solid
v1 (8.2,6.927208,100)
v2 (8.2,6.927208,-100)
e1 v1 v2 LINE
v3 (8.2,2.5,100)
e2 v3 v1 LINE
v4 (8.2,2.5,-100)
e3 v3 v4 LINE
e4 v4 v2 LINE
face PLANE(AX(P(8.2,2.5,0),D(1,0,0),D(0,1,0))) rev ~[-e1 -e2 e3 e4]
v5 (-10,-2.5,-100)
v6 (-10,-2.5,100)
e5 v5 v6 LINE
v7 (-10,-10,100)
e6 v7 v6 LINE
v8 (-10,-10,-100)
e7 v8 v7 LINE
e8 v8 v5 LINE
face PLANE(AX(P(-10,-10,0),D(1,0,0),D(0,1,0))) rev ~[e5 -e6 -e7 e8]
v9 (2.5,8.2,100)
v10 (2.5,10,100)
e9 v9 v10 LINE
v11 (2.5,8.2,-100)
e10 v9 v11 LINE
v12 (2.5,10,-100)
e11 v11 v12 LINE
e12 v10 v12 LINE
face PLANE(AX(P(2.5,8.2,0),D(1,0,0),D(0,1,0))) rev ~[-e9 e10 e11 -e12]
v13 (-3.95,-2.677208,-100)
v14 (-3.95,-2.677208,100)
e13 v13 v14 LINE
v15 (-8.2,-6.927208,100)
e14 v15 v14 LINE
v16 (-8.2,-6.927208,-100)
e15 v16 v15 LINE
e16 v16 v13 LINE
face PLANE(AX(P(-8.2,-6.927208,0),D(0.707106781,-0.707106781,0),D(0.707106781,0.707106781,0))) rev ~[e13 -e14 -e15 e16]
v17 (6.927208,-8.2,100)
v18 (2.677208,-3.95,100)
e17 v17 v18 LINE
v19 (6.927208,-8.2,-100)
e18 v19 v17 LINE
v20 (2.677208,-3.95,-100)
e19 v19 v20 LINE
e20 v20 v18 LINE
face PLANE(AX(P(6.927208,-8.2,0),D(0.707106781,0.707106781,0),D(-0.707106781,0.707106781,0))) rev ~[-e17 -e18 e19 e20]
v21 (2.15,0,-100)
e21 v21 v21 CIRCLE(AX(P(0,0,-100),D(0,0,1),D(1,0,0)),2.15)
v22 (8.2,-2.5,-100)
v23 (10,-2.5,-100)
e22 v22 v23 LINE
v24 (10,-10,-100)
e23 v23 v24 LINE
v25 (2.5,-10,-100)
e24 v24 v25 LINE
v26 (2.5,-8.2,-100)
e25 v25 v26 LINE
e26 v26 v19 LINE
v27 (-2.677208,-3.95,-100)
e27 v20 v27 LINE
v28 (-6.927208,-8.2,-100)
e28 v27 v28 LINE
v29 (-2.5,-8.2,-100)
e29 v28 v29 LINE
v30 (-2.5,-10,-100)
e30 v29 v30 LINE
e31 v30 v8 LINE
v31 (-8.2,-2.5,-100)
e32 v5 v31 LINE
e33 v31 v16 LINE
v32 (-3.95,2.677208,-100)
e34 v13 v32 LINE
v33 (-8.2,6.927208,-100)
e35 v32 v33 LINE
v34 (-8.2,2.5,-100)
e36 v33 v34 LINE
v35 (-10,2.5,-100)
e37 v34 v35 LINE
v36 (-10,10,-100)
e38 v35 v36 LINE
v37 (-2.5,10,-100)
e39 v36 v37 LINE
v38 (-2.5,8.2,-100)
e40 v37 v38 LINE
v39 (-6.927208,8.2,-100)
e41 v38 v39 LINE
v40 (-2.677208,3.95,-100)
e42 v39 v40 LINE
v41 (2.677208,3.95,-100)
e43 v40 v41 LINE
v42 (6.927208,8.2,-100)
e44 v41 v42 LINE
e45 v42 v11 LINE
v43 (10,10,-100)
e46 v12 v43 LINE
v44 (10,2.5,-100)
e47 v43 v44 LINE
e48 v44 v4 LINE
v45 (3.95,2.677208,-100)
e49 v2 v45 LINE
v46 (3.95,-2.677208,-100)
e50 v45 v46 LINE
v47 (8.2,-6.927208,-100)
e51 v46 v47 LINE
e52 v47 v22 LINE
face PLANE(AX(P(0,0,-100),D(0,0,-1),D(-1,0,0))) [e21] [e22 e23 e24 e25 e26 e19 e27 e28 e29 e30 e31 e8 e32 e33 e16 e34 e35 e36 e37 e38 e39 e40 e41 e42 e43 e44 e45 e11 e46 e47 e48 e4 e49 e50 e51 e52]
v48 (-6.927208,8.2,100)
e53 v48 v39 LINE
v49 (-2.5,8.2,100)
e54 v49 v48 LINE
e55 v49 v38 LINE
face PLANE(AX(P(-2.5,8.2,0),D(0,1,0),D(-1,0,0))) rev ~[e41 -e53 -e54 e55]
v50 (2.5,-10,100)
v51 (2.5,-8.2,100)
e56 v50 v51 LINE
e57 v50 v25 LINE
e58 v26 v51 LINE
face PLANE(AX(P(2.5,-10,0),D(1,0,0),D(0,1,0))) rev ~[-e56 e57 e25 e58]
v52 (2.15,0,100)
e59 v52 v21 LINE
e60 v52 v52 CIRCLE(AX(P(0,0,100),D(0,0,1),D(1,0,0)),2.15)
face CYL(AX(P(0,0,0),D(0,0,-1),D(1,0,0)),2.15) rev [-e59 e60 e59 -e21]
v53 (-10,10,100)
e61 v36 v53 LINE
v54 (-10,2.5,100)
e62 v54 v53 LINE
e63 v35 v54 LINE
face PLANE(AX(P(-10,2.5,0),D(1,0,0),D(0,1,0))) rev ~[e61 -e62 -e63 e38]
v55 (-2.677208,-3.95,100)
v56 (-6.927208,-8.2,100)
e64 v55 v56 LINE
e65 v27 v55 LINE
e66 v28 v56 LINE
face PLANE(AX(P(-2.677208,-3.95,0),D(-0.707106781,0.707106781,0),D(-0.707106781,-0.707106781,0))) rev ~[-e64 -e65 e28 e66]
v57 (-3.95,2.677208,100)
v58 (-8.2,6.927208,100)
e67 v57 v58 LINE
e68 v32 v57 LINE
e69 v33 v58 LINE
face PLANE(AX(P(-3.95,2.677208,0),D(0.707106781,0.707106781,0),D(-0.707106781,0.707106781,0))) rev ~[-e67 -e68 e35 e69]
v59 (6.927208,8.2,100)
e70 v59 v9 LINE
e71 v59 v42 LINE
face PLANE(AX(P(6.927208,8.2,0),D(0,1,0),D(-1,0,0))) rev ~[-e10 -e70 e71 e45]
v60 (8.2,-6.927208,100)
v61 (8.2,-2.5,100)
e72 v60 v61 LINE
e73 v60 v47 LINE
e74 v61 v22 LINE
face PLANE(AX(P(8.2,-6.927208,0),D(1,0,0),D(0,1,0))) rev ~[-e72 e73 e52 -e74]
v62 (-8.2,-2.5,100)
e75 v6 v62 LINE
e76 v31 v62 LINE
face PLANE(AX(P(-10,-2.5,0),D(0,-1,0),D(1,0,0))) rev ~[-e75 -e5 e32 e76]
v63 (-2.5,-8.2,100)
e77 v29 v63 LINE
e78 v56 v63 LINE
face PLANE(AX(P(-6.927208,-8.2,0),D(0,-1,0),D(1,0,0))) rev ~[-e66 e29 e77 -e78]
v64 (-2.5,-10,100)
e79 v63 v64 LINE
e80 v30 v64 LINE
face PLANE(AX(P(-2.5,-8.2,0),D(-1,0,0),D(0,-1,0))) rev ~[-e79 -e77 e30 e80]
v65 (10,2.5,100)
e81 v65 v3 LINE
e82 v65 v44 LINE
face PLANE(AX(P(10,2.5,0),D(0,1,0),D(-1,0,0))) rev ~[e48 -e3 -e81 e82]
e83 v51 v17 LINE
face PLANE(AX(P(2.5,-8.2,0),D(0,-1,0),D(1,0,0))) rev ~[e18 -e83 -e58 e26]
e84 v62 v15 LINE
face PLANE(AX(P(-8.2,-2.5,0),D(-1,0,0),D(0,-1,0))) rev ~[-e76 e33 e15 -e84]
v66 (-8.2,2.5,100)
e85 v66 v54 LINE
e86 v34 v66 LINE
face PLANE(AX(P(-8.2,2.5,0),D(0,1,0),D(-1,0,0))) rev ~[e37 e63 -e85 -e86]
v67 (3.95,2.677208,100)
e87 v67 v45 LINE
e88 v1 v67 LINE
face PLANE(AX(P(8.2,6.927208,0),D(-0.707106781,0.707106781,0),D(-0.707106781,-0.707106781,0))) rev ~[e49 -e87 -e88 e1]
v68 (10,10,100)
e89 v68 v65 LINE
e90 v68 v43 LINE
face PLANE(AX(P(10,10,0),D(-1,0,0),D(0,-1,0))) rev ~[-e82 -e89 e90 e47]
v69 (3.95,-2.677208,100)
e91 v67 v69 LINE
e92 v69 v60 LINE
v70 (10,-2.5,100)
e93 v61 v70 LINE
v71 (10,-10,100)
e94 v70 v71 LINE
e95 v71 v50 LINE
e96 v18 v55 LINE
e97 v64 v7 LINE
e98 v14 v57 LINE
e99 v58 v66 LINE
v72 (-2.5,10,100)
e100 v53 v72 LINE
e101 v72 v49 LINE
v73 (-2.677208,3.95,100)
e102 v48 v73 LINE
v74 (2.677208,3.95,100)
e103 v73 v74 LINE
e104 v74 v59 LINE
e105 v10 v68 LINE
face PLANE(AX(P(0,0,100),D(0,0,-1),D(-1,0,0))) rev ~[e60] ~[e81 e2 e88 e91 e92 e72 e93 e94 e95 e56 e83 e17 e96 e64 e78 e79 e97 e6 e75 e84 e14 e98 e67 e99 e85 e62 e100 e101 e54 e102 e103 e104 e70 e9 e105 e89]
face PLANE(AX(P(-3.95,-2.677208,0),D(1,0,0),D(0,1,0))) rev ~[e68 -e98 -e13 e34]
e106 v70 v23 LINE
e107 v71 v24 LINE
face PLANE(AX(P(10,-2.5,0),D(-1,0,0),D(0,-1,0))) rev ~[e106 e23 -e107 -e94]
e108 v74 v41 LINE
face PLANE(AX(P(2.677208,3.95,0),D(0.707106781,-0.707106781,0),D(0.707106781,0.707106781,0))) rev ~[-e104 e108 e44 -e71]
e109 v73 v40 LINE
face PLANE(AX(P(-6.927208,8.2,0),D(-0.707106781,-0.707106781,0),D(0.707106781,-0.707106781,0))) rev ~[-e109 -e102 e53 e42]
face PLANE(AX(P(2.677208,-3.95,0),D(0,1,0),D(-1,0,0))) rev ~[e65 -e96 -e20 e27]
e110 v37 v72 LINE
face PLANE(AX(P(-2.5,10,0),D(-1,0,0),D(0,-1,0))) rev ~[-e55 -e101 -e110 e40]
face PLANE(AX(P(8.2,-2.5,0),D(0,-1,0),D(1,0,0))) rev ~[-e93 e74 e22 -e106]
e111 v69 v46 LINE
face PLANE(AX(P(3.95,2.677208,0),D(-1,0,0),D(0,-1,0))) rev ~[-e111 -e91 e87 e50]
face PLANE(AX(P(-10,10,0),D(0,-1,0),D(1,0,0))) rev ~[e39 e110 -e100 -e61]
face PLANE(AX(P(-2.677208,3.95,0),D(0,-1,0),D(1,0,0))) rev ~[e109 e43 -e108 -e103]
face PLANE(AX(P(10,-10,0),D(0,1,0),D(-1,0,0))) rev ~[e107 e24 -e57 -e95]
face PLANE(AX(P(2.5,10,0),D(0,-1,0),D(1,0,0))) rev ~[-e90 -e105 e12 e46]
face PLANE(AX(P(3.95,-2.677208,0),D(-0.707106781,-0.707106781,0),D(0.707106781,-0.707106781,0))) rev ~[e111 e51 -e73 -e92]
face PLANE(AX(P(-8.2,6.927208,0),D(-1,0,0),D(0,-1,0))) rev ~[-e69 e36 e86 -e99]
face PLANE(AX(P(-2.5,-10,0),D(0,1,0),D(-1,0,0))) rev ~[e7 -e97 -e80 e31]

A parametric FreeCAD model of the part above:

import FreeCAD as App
import Part
import Sketcher

doc = App.newDocument("Part")
body = doc.addObject("PartDesign::Body", "Body")

# Sketch on XY plane
sketch1 = body.newObject("Sketcher::SketchObject", "Sketch")
sketch1.AttachmentSupport = (doc.getObject("XY_Plane"), [""])
sketch1.MapMode = "FlatFace"
sketch1.addGeometry([
    Part.LineSegment(App.Vector(-2.5, 8.2, 0), App.Vector(-2.5, 10, 0)),  # 0
    Part.LineSegment(App.Vector(-2.5, 10, 0), App.Vector(-10, 10, 0)),  # 1
    Part.LineSegment(App.Vector(-10, 10, 0), App.Vector(-10, 2.5, 0)),  # 2
    Part.LineSegment(App.Vector(-10, 2.5, 0), App.Vector(-8.2, 2.5, 0)),  # 3
    Part.LineSegment(App.Vector(-8.2, 2.5, 0), App.Vector(-8.2, 6.9, 0)),  # 4
    Part.LineSegment(App.Vector(-8.2, 6.9, 0), App.Vector(-4, 2.7, 0)),  # 5
    Part.LineSegment(App.Vector(-4, 2.7, 0), App.Vector(-4, -2.7, 0)),  # 6
    Part.LineSegment(App.Vector(-4, -2.7, 0), App.Vector(-8.2, -6.9, 0)),  # 7
    Part.LineSegment(App.Vector(-8.2, -6.9, 0), App.Vector(-8.2, -2.5, 0)),  # 8
    Part.LineSegment(App.Vector(-8.2, -2.5, 0), App.Vector(-10, -2.5, 0)),  # 9
    Part.LineSegment(App.Vector(-10, -2.5, 0), App.Vector(-10, -10, 0)),  # 10
    Part.LineSegment(App.Vector(-10, -10, 0), App.Vector(-2.5, -10, 0)),  # 11
    Part.LineSegment(App.Vector(-2.5, -10, 0), App.Vector(-2.5, -8.2, 0)),  # 12
    Part.LineSegment(App.Vector(-2.5, -8.2, 0), App.Vector(-6.9, -8.2, 0)),  # 13
    Part.LineSegment(App.Vector(-6.9, -8.2, 0), App.Vector(-2.7, -4, 0)),  # 14
    Part.LineSegment(App.Vector(-2.7, -4, 0), App.Vector(2.7, -4, 0)),  # 15
    Part.LineSegment(App.Vector(2.7, -4, 0), App.Vector(6.9, -8.2, 0)),  # 16
    Part.LineSegment(App.Vector(6.9, -8.2, 0), App.Vector(2.5, -8.2, 0)),  # 17
    Part.LineSegment(App.Vector(2.5, -8.2, 0), App.Vector(2.5, -10, 0)),  # 18
    Part.LineSegment(App.Vector(2.5, -10, 0), App.Vector(10, -10, 0)),  # 19
    Part.LineSegment(App.Vector(10, -10, 0), App.Vector(10, -2.5, 0)),  # 20
    Part.LineSegment(App.Vector(10, -2.5, 0), App.Vector(8.2, -2.5, 0)),  # 21
    Part.LineSegment(App.Vector(8.2, -2.5, 0), App.Vector(8.2, -6.9, 0)),  # 22
    Part.LineSegment(App.Vector(8.2, -6.9, 0), App.Vector(4, -2.7, 0)),  # 23
    Part.LineSegment(App.Vector(4, -2.7, 0), App.Vector(4, 2.7, 0)),  # 24
    Part.LineSegment(App.Vector(4, 2.7, 0), App.Vector(8.2, 6.9, 0)),  # 25
    Part.LineSegment(App.Vector(8.2, 6.9, 0), App.Vector(8.2, 2.5, 0)),  # 26
    Part.LineSegment(App.Vector(8.2, 2.5, 0), App.Vector(10, 2.5, 0)),  # 27
    Part.LineSegment(App.Vector(10, 2.5, 0), App.Vector(10, 10, 0)),  # 28
    Part.LineSegment(App.Vector(10, 10, 0), App.Vector(2.5, 10, 0)),  # 29
    Part.LineSegment(App.Vector(2.5, 10, 0), App.Vector(2.5, 8.2, 0)),  # 30
    Part.LineSegment(App.Vector(2.5, 8.2, 0), App.Vector(6.9, 8.2, 0)),  # 31
    Part.LineSegment(App.Vector(6.9, 8.2, 0), App.Vector(2.7, 4, 0)),  # 32
    Part.LineSegment(App.Vector(2.7, 4, 0), App.Vector(-2.7, 4, 0)),  # 33
    Part.LineSegment(App.Vector(-2.7, 4, 0), App.Vector(-6.9, 8.2, 0)),  # 34
    Part.LineSegment(App.Vector(-6.9, 8.2, 0), App.Vector(-2.5, 8.2, 0)),  # 35
    Part.Circle(App.Vector(0, 0, 0), App.Vector(0, 0, 1), 2.1),  # 36
], False)
sketch1.addConstraint([
    Sketcher.Constraint("Coincident", 0, 2, 1, 1),
    Sketcher.Constraint("Coincident", 1, 2, 2, 1),
    Sketcher.Constraint("Coincident", 2, 2, 3, 1),
    Sketcher.Constraint("Coincident", 3, 2, 4, 1),
    Sketcher.Constraint("Coincident", 4, 2, 5, 1),
    Sketcher.Constraint("Coincident", 5, 2, 6, 1),
    Sketcher.Constraint("Coincident", 6, 2, 7, 1),
    Sketcher.Constraint("Coincident", 7, 2, 8, 1),
    Sketcher.Constraint("Coincident", 8, 2, 9, 1),
    Sketcher.Constraint("Coincident", 9, 2, 10, 1),
    Sketcher.Constraint("Coincident", 10, 2, 11, 1),
    Sketcher.Constraint("Coincident", 11, 2, 12, 1),
    Sketcher.Constraint("Coincident", 12, 2, 13, 1),
    Sketcher.Constraint("Coincident", 13, 2, 14, 1),
    Sketcher.Constraint("Coincident", 14, 2, 15, 1),
    Sketcher.Constraint("Coincident", 15, 2, 16, 1),
    Sketcher.Constraint("Coincident", 16, 2, 17, 1),
    Sketcher.Constraint("Coincident", 17, 2, 18, 1),
    Sketcher.Constraint("Coincident", 18, 2, 19, 1),
    Sketcher.Constraint("Coincident", 19, 2, 20, 1),
    Sketcher.Constraint("Coincident", 20, 2, 21, 1),
    Sketcher.Constraint("Coincident", 21, 2, 22, 1),
    Sketcher.Constraint("Coincident", 22, 2, 23, 1),
    Sketcher.Constraint("Coincident", 23, 2, 24, 1),
    Sketcher.Constraint("Coincident", 24, 2, 25, 1),
    Sketcher.Constraint("Coincident", 25, 2, 26, 1),
    Sketcher.Constraint("Coincident", 26, 2, 27, 1),
    Sketcher.Constraint("Coincident", 27, 2, 28, 1),
    Sketcher.Constraint("Coincident", 28, 2, 29, 1),
    Sketcher.Constraint("Coincident", 29, 2, 30, 1),
    Sketcher.Constraint("Coincident", 30, 2, 31, 1),
    Sketcher.Constraint("Coincident", 31, 2, 32, 1),
    Sketcher.Constraint("Coincident", 32, 2, 33, 1),
    Sketcher.Constraint("Coincident", 33, 2, 34, 1),
    Sketcher.Constraint("Coincident", 34, 2, 35, 1),
    Sketcher.Constraint("Coincident", 35, 2, 0, 1),
    Sketcher.Constraint("Vertical", 0),
    Sketcher.Constraint("Horizontal", 1),
    Sketcher.Constraint("Vertical", 2),
    Sketcher.Constraint("Horizontal", 3),
    Sketcher.Constraint("Vertical", 4),
    Sketcher.Constraint("Vertical", 6),
    Sketcher.Constraint("Vertical", 8),
    Sketcher.Constraint("Horizontal", 9),
    Sketcher.Constraint("Vertical", 10),
    Sketcher.Constraint("Horizontal", 11),
    Sketcher.Constraint("Vertical", 12),
    Sketcher.Constraint("Horizontal", 13),
    Sketcher.Constraint("Horizontal", 15),
    Sketcher.Constraint("Horizontal", 17),
    Sketcher.Constraint("Vertical", 18),
    Sketcher.Constraint("Horizontal", 19),
    Sketcher.Constraint("Vertical", 20),
    Sketcher.Constraint("Horizontal", 21),
    Sketcher.Constraint("Vertical", 22),
    Sketcher.Constraint("Vertical", 24),
    Sketcher.Constraint("Vertical", 26),
    Sketcher.Constraint("Horizontal", 27),
    Sketcher.Constraint("Vertical", 28),
    Sketcher.Constraint("Horizontal", 29),
    Sketcher.Constraint("Vertical", 30),
    Sketcher.Constraint("Horizontal", 31),
    Sketcher.Constraint("Horizontal", 33),
    Sketcher.Constraint("Horizontal", 35),
    Sketcher.Constraint("Coincident", 36, 3, -1, 1),
    Sketcher.Constraint("Symmetric", 0, 2, 18, 2, -1, 1),
    Sketcher.Constraint("Symmetric", 2, 2, 20, 2, -1, 1),
    Sketcher.Constraint("Symmetric", 4, 2, 22, 2, -1, 1),
    Sketcher.Constraint("Symmetric", 5, 2, 23, 2, -1, 1),
    Sketcher.Constraint("Symmetric", 7, 2, 25, 2, -1, 1),
    Sketcher.Constraint("Symmetric", 9, 2, 27, 2, -1, 1),
    Sketcher.Constraint("Symmetric", 11, 2, 29, 2, -1, 1),
    Sketcher.Constraint("Symmetric", 13, 2, 31, 2, -1, 1),
    Sketcher.Constraint("Symmetric", 14, 2, 32, 2, -1, 1),
    Sketcher.Constraint("Symmetric", 16, 2, 34, 2, -1, 1),
    Sketcher.Constraint("Symmetric", 13, 2, 16, 2, -2),
    Sketcher.Constraint("Symmetric", 11, 2, 18, 2, -2),
    Sketcher.Constraint("Symmetric", 9, 2, 20, 2, -2),
    Sketcher.Constraint("Symmetric", 7, 2, 22, 2, -2),
    Sketcher.Constraint("Perpendicular", 5, 7),
    Sketcher.Constraint("Parallel", 7, 14),
    Sketcher.Constraint("Perpendicular", 14, 16),
    Sketcher.Constraint("Perpendicular", 23, 25),
    Sketcher.Constraint("Perpendicular", 32, 34),
    Sketcher.Constraint("Horizontal", 6, 2, 23, 2),
    Sketcher.Constraint("Equal", 27, 0),
    Sketcher.Constraint("Equal", 29, 2),
    Sketcher.Constraint("Equal", 35, 4),
    Sketcher.Constraint("Equal", 33, 6),
    Sketcher.Constraint("Equal", 7, 14),
    Sketcher.Constraint("Diameter", 36, 4.3),
    Sketcher.Constraint("DistanceX", 1, 2, 1, 1, 7.5),
    Sketcher.Constraint("DistanceX", 3, 1, 3, 2, 1.8),
    Sketcher.Constraint("DistanceY", -1, 1, 0, 2, 10.0),
    Sketcher.Constraint("DistanceX", 5, 2, 24, 2, 7.9),
    Sketcher.Constraint("DistanceX", 13, 2, 13, 1, 4.427208),
])
pad1 = body.newObject("PartDesign::Pad", "Pad")
pad1.Profile = sketch1
pad1.Length = 200
pad1.Midplane = True

doc.recompute()
